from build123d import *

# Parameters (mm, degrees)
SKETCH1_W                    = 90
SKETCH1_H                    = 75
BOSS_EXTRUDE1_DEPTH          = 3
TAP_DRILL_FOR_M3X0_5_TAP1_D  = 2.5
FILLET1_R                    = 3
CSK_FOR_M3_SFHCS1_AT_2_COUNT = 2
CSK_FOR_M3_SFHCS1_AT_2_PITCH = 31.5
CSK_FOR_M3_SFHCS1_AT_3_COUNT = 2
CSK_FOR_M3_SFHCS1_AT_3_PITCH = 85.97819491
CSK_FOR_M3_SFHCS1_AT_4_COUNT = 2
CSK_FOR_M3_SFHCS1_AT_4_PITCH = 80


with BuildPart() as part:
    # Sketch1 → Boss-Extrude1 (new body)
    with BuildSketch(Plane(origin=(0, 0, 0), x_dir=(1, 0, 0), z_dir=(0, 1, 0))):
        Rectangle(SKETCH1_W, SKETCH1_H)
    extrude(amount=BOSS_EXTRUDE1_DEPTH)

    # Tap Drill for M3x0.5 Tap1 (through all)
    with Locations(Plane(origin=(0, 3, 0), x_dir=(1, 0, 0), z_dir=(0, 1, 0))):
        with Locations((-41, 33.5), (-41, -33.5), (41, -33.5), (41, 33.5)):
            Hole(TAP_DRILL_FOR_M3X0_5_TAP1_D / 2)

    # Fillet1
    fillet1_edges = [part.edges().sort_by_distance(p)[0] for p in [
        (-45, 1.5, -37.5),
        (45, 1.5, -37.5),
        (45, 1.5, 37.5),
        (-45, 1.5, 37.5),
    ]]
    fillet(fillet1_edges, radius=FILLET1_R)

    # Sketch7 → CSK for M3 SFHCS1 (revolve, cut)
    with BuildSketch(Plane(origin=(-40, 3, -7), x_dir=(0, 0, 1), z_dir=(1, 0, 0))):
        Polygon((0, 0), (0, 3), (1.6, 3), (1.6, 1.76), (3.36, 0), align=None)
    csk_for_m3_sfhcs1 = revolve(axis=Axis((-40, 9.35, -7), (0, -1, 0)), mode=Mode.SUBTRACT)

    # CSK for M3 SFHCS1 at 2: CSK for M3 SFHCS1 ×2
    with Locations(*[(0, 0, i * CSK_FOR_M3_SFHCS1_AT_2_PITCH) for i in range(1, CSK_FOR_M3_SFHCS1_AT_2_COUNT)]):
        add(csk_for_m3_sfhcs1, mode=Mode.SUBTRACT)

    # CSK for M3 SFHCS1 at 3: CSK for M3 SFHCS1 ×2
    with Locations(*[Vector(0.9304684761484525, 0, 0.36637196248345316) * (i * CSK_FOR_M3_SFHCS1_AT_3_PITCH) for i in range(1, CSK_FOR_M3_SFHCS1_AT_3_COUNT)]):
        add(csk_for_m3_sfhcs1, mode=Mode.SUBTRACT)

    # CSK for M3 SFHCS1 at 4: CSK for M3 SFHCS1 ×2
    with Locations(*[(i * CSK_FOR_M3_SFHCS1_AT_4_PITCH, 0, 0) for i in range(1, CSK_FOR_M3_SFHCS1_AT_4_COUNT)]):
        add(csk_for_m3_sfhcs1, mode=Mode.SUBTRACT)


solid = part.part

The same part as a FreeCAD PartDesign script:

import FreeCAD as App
import Part
import Sketcher
from FreeCAD import Vector
Q = App.Units.Quantity


def edges_at(feature, points):
    """Names of the edges that pass closest to the given points."""
    edges = feature.Shape.Edges
    near = lambda p: min(range(len(edges)), key=lambda i: edges[i].distToShape(Part.Vertex(*p))[0])
    return sorted({f"Edge{near(p) + 1}" for p in points})

doc = App.newDocument("Part")
body = doc.addObject("PartDesign::Body", "Body")

# Sketch on XZ plane
sketch1 = doc.addObject("Sketcher::SketchObject", "Sketch")
body.addObject(sketch1)
sketch1.AttachmentSupport = (doc.XZ_Plane, [""])
sketch1.MapMode = "FlatFace"
sketch1.addGeometry(Part.LineSegment(Vector(-45, -38, 0), Vector(-45, 38, 0)), False)
sketch1.addGeometry(Part.LineSegment(Vector(-45, 38, 0), Vector(45, 38, 0)), False)
sketch1.addGeometry(Part.LineSegment(Vector(45, 38, 0), Vector(45, -38, 0)), False)
sketch1.addGeometry(Part.LineSegment(Vector(45, -38, 0), Vector(-45, -38, 0)), False)
sketch1.addConstraint(Sketcher.Constraint("Coincident", 0, 2, 1, 1))
sketch1.addConstraint(Sketcher.Constraint("Coincident", 1, 2, 2, 1))
sketch1.addConstraint(Sketcher.Constraint("Coincident", 2, 2, 3, 1))
sketch1.addConstraint(Sketcher.Constraint("Coincident", 3, 2, 0, 1))
sketch1.addConstraint(Sketcher.Constraint("Vertical", 0))
sketch1.addConstraint(Sketcher.Constraint("Horizontal", 1))
sketch1.addConstraint(Sketcher.Constraint("Vertical", 2))
sketch1.addConstraint(Sketcher.Constraint("Horizontal", 3))
sketch1.addConstraint(Sketcher.Constraint("Symmetric", 0, 2, 2, 2, -1, 1))
sketch1.addConstraint(Sketcher.Constraint("DistanceX", 1, 1, 1, 2, Q("90 mm")))
sketch1.addConstraint(Sketcher.Constraint("DistanceY", 0, 1, 0, 2, Q("75 mm")))
pad1 = doc.addObject("PartDesign::Pad", "Pad")
body.addObject(pad1)
pad1.Profile = sketch1
pad1.Length = 3
pad1.Reversed = True

# Sketch on XZ plane
sketch2 = doc.addObject("Sketcher::SketchObject", "Sketch001")
body.addObject(sketch2)
sketch2.AttachmentSupport = (doc.XZ_Plane, [""])
sketch2.MapMode = "FlatFace"
sketch2.AttachmentOffset = App.Placement(Vector(0, 0, -3), App.Rotation())
sketch2.addGeometry(Part.Circle(Vector(-41, -33.5, 0), Vector(0, 0, 1), 1.2), False)
sketch2.addGeometry(Part.Circle(Vector(-41, 33.5, 0), Vector(0, 0, 1), 1.2), False)
sketch2.addGeometry(Part.Circle(Vector(41, 33.5, 0), Vector(0, 0, 1), 1.2), False)
sketch2.addGeometry(Part.Circle(Vector(41, -33.5, 0), Vector(0, 0, 1), 1.2), False)
sketch2.addConstraint(Sketcher.Constraint("Equal", 0, 1))
sketch2.addConstraint(Sketcher.Constraint("Equal", 1, 2))
sketch2.addConstraint(Sketcher.Constraint("Equal", 2, 3))
sketch2.addConstraint(Sketcher.Constraint("Symmetric", 0, 3, 2, 3, -1, 1))
sketch2.addConstraint(Sketcher.Constraint("Symmetric", 1, 3, 3, 3, -1, 1))
sketch2.addConstraint(Sketcher.Constraint("Symmetric", 1, 3, 2, 3, -2))
sketch2.addConstraint(Sketcher.Constraint("Diameter", 0, Q("2.5 mm")))
sketch2.addConstraint(Sketcher.Constraint("DistanceX", 0, 3, -1, 1, Q("41 mm")))
sketch2.addConstraint(Sketcher.Constraint("DistanceY", 0, 3, 1, 3, Q("67 mm")))
doc.recompute()
hole = doc.addObject("PartDesign::Hole", "Hole")
body.addObject(hole)
hole.Profile = sketch2
hole.ThreadType = "None"
hole.Diameter = 2.5
hole.DepthType = "ThroughAll"
hole.Reversed = True
doc.recompute()

fillet = doc.addObject("PartDesign::Fillet", "Fillet")
body.addObject(fillet)
fillet.Base = (hole, edges_at(hole, [
    (-45, 1.5, -37.5),
    (45, 1.5, -37.5),
    (45, 1.5, 37.5),
    (-45, 1.5, 37.5),
]))
fillet.Radius = 3

# Sketch on YZ plane
sketch3 = doc.addObject("Sketcher::SketchObject", "Sketch002")
body.addObject(sketch3)
sketch3.AttachmentSupport = (doc.YZ_Plane, [""])
sketch3.MapMode = "FlatFace"
sketch3.AttachmentOffset = App.Placement(Vector(0, 0, -40), App.Rotation())
sketch3.addGeometry(Part.LineSegment(Vector(0, -7, 0), Vector(3, -7, 0)), False)
sketch3.addGeometry(Part.LineSegment(Vector(3, -7, 0), Vector(3, -3.6, 0)), False)
sketch3.addGeometry(Part.LineSegment(Vector(3, -3.6, 0), Vector(1.2, -5.4, 0)), False)
sketch3.addGeometry(Part.LineSegment(Vector(1.2, -5.4, 0), Vector(0, -5.4, 0)), False)
sketch3.addGeometry(Part.LineSegment(Vector(0, -5.4, 0), Vector(0, -7, 0)), False)
sketch3.addGeometry(Part.LineSegment(Vector(3, -7, 0), Vector(0, -7, 0)), True)  # axis
sketch3.addConstraint(Sketcher.Constraint("Coincident", 0, 2, 1, 1))
sketch3.addConstraint(Sketcher.Constraint("Coincident", 1, 2, 2, 1))
sketch3.addConstraint(Sketcher.Constraint("Coincident", 2, 2, 3, 1))
sketch3.addConstraint(Sketcher.Constraint("Coincident", 3, 2, 4, 1))
sketch3.addConstraint(Sketcher.Constraint("Coincident", 4, 2, 0, 1))
sketch3.addConstraint(Sketcher.Constraint("Horizontal", 0))
sketch3.addConstraint(Sketcher.Constraint("Vertical", 1))
sketch3.addConstraint(Sketcher.Constraint("Horizontal", 3))
sketch3.addConstraint(Sketcher.Constraint("Vertical", 4))
sketch3.addConstraint(Sketcher.Constraint("Horizontal", 5))
sketch3.addConstraint(Sketcher.Constraint("Coincident", 5, 1, 0, 2))
sketch3.addConstraint(Sketcher.Constraint("PointOnObject", 3, 2, -2))
sketch3.addConstraint(Sketcher.Constraint("PointOnObject", 5, 2, -2))
sketch3.addConstraint(Sketcher.Constraint("DistanceX", 0, 1, 0, 2, Q("3 mm")))
sketch3.addConstraint(Sketcher.Constraint("Angle", 2, Q("-135 deg")))
sketch3.addConstraint(Sketcher.Constraint("DistanceY", 4, 2, 4, 1, Q("1.6 mm")))
sketch3.addConstraint(Sketcher.Constraint("DistanceY", 0, 2, -1, 1, Q("7 mm")))
sketch3.addConstraint(Sketcher.Constraint("DistanceX", 3, 2, 3, 1, Q("1.24 mm")))
groove = doc.addObject("PartDesign::Groove", "Groove")
body.addObject(groove)
groove.Profile = sketch3
groove.ReferenceAxis = (sketch3, ["Axis0"])
groove.Angle = 360
doc.recompute()

linearpattern = doc.addObject("PartDesign::LinearPattern", "LinearPattern")
body.addObject(linearpattern)
linearpattern.Originals = [groove]
linearpattern.Direction = (doc.Z_Axis, [""])
linearpattern.Mode = "offset"
linearpattern.Offset = 31.5
linearpattern.Occurrences = 2
body.Tip = linearpattern
doc.recompute()

datumline = doc.addObject("PartDesign::Line", "DatumLine")
body.addObject(datumline)
datumline.Placement = App.Placement(Vector(0, 0, 0), App.Rotation(Vector(0, 0, 1), Vector(0.930468476, 0, 0.366371962)))
linearpattern2 = doc.addObject("PartDesign::LinearPattern", "LinearPattern001")
body.addObject(linearpattern2)
linearpattern2.Originals = [groove]
linearpattern2.Direction = (datumline, [""])
linearpattern2.Mode = "offset"
linearpattern2.Offset = 85.978195
linearpattern2.Occurrences = 2
body.Tip = linearpattern2
doc.recompute()

linearpattern3 = doc.addObject("PartDesign::LinearPattern", "LinearPattern002")
body.addObject(linearpattern3)
linearpattern3.Originals = [groove]
linearpattern3.Direction = (doc.X_Axis, [""])
linearpattern3.Mode = "offset"
linearpattern3.Offset = 80
linearpattern3.Occurrences = 2
body.Tip = linearpattern3

doc.recompute()
